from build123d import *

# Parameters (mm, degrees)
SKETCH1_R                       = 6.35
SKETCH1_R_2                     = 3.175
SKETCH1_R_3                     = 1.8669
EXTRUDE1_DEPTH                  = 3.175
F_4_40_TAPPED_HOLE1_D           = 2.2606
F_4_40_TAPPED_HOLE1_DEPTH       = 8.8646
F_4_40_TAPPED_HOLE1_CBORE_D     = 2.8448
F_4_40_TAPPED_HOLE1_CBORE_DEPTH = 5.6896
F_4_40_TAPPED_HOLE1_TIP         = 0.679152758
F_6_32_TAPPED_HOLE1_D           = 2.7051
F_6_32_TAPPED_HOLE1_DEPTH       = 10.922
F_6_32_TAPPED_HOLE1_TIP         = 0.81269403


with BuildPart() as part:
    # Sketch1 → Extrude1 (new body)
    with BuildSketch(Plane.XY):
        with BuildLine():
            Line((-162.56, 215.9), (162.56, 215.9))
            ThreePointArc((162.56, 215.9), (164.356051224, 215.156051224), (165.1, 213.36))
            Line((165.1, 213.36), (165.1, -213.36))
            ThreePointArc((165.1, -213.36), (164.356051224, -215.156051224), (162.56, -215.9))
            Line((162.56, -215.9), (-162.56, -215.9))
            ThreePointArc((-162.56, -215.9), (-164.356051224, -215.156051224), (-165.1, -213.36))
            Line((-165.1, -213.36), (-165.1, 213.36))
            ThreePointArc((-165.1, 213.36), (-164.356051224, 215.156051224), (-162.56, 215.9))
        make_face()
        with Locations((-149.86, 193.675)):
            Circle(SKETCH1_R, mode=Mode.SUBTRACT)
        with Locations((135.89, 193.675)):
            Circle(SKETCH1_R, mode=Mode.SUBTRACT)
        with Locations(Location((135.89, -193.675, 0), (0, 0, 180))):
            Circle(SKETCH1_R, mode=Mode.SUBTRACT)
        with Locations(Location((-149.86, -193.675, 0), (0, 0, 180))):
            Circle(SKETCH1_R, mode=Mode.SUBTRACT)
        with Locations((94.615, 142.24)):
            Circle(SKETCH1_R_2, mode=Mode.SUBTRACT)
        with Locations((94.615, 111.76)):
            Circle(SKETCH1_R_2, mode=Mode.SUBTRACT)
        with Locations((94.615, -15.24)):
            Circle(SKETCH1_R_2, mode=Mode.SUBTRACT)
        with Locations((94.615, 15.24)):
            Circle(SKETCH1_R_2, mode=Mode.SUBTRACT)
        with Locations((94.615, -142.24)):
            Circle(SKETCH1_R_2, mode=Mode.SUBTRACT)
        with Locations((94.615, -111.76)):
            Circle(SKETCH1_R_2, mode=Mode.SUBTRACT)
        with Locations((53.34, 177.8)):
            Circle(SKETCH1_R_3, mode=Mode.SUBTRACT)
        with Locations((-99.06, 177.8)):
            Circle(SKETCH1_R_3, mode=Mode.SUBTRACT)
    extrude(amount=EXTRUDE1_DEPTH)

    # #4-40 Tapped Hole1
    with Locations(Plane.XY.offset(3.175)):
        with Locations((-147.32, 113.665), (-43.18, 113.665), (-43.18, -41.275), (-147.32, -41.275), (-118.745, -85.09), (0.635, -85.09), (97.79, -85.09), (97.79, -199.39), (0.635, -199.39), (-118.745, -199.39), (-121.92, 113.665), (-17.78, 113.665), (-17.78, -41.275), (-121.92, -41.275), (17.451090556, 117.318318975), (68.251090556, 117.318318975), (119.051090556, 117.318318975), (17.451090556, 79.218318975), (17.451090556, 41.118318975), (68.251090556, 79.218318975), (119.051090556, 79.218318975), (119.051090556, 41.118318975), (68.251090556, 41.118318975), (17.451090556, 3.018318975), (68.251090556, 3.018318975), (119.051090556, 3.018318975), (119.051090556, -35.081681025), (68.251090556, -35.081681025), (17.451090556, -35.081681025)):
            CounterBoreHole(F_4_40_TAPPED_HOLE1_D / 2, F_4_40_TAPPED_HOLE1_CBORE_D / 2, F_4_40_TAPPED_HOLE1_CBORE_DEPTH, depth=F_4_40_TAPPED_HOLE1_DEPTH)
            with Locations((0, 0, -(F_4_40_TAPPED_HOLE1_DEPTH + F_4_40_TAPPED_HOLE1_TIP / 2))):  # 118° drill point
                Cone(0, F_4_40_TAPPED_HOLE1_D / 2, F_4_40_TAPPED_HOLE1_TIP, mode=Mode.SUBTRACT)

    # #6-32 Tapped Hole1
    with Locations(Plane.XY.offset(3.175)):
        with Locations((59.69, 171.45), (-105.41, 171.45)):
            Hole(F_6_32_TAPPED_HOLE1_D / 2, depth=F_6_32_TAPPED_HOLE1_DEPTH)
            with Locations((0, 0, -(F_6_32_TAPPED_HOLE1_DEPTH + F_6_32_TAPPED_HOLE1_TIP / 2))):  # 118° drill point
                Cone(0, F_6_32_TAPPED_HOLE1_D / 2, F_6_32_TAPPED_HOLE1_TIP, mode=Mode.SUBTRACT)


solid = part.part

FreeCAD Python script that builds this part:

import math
import FreeCAD as App
import Part
import Sketcher
from FreeCAD import Vector
Q = App.Units.Quantity

doc = App.newDocument("Part")
body = doc.addObject("PartDesign::Body", "Body")

sketch1 = doc.addObject("Sketcher::SketchObject", "Sketch")
body.addObject(sketch1)
sketch1.AttachmentSupport = (doc.XY_Plane, [""])
sketch1.MapMode = "FlatFace"
sketch1.addGeometry([
    Part.LineSegment(Vector(162.6, 215.9, 0), Vector(-162.6, 215.9, 0)),
    Part.ArcOfCircle(Part.Circle(Vector(-162.6, 213.4, 0), Vector(0, 0, 1), 2.5), math.radians(90), math.radians(180)),
    Part.LineSegment(Vector(-165.1, 213.4, 0), Vector(-165.1, -213.4, 0)),
    Part.ArcOfCircle(Part.Circle(Vector(-162.6, -213.4, 0), Vector(0, 0, 1), 2.5), math.radians(-180), math.radians(-90)),
    Part.LineSegment(Vector(-162.6, -215.9, 0), Vector(162.6, -215.9, 0)),
    Part.ArcOfCircle(Part.Circle(Vector(162.6, -213.4, 0), Vector(0, 0, 1), 2.5), math.radians(-90), math.radians(0)),
    Part.LineSegment(Vector(165.1, -213.4, 0), Vector(165.1, 213.4, 0)),
    Part.ArcOfCircle(Part.Circle(Vector(162.6, 213.4, 0), Vector(0, 0, 1), 2.5), math.radians(0), math.radians(90)),
    Part.Circle(Vector(135.9, -193.7, 0), Vector(0, 0, 1), 6.3),
    Part.Circle(Vector(94.6, -142.2, 0), Vector(0, 0, 1), 3.2),
    Part.Circle(Vector(94.6, -111.8, 0), Vector(0, 0, 1), 3.2),
    Part.Circle(Vector(94.6, -15.2, 0), Vector(0, 0, 1), 3.2),
    Part.Circle(Vector(-149.9, -193.7, 0), Vector(0, 0, 1), 6.3),
    Part.Circle(Vector(94.6, 15.2, 0), Vector(0, 0, 1), 3.2),
    Part.Circle(Vector(94.6, 111.8, 0), Vector(0, 0, 1), 3.2),
    Part.Circle(Vector(94.6, 142.2, 0), Vector(0, 0, 1), 3.2),
    Part.Circle(Vector(135.9, 193.7, 0), Vector(0, 0, 1), 6.3),
    Part.Circle(Vector(53.3, 177.8, 0), Vector(0, 0, 1), 1.9),
    Part.Circle(Vector(-99.1, 177.8, 0), Vector(0, 0, 1), 1.9),
    Part.Circle(Vector(-149.9, 193.7, 0), Vector(0, 0, 1), 6.3),
], False)
sketch1.addConstraint([
    Sketcher.Constraint("Tangent", 0, 2, 1, 1),
    Sketcher.Constraint("Tangent", 1, 2, 2, 1),
    Sketcher.Constraint("Tangent", 2, 2, 3, 1),
    Sketcher.Constraint("Tangent", 3, 2, 4, 1),
    Sketcher.Constraint("Tangent", 4, 2, 5, 1),
    Sketcher.Constraint("Tangent", 5, 2, 6, 1),
    Sketcher.Constraint("Tangent", 6, 2, 7, 1),
    Sketcher.Constraint("Tangent", 7, 2, 0, 1),
    Sketcher.Constraint("Horizontal", 0),
    Sketcher.Constraint("Vertical", 2),
    Sketcher.Constraint("Horizontal", 4),
    Sketcher.Constraint("Vertical", 6),
    Sketcher.Constraint("Equal", 1, 3),
    Sketcher.Constraint("Equal", 3, 5),
    Sketcher.Constraint("Equal", 5, 7),
    Sketcher.Constraint("Equal", 9, 10),
    Sketcher.Constraint("Equal", 10, 11),
    Sketcher.Constraint("Equal", 8, 12),
    Sketcher.Constraint("Equal", 11, 13),
    Sketcher.Constraint("Equal", 13, 14),
    Sketcher.Constraint("Equal", 14, 15),
    Sketcher.Constraint("Equal", 12, 16),
    Sketcher.Constraint("Equal", 17, 18),
    Sketcher.Constraint("Equal", 16, 19),
    Sketcher.Constraint("Symmetric", 1, 3, 5, 3, -1, 1),
    Sketcher.Constraint("Symmetric", 11, 3, 13, 3, -1),
    Sketcher.Constraint("Symmetric", 10, 3, 14, 3, -1),
    Sketcher.Constraint("Symmetric", 9, 3, 15, 3, -1),
    Sketcher.Constraint("Symmetric", 8, 3, 16, 3, -1),
    Sketcher.Constraint("Symmetric", 12, 3, 19, 3, -1),
    Sketcher.Constraint("Horizontal", 8, 3, 12, 3),
    Sketcher.Constraint("Horizontal", 17, 3, 18, 3),
    Sketcher.Constraint("Vertical", 9, 3, 10, 3),
    Sketcher.Constraint("Vertical", 10, 3, 11, 3),
    Sketcher.Constraint("Diameter", 8, Q("0.5 in")),
    Sketcher.Constraint("Radius", 1, Q("0.1 in")),
    Sketcher.Constraint("Diameter", 9, Q("0.25 in")),
    Sketcher.Constraint("Diameter", 17, Q("0.147 in")),
    Sketcher.Constraint("DistanceX", 0, 2, 0, 1, Q("12.8 in")),
    Sketcher.Constraint("DistanceY", 2, 2, 2, 1, Q("16.8 in")),
    Sketcher.Constraint("DistanceY", -1, 1, 17, 3, Q("7 in")),
    Sketcher.Constraint("DistanceY", 9, 3, 7, 3, Q("14 in")),
    Sketcher.Constraint("DistanceY", 5, 3, 10, 3, Q("4 in")),
    Sketcher.Constraint("DistanceY", 9, 3, 11, 3, Q("5 in")),
    Sketcher.Constraint("DistanceX", 18, 3, 17, 3, Q("6 in")),
    Sketcher.Constraint("DistanceX", 19, 3, 18, 3, Q("2 in")),
    Sketcher.Constraint("DistanceX", 12, 3, -1, 1, Q("5.9 in")),
    Sketcher.Constraint("DistanceX", -1, 1, 8, 3, Q("5.35 in")),
    Sketcher.Constraint("DistanceY", 8, 3, -1, 1, Q("7.625 in")),
    Sketcher.Constraint("DistanceX", -1, 1, 9, 3, Q("3.725 in")),
])
pad1 = doc.addObject("PartDesign::Pad", "Pad")
body.addObject(pad1)
pad1.Profile = sketch1
pad1.Length = Q("0.125 in")

sketch2 = doc.addObject("Sketcher::SketchObject", "Sketch001")
body.addObject(sketch2)
sketch2.AttachmentSupport = (doc.XY_Plane, [""])
sketch2.MapMode = "FlatFace"
sketch2.AttachmentOffset = App.Placement(Vector(0, 0, 0.125 * 25.4), App.Rotation())
sketch2.addGeometry([
    Part.Circle(Vector(-147.3, 113.7, 0), Vector(0, 0, 1), 1.1),
    Part.Circle(Vector(-43.2, 113.7, 0), Vector(0, 0, 1), 1.1),
    Part.Circle(Vector(-43.2, -41.3, 0), Vector(0, 0, 1), 1.1),
    Part.Circle(Vector(-147.3, -41.3, 0), Vector(0, 0, 1), 1.1),
    Part.Circle(Vector(-118.7, -85.1, 0), Vector(0, 0, 1), 1.1),
    Part.Circle(Vector(0.6, -85.1, 0), Vector(0, 0, 1), 1.1),
    Part.Circle(Vector(97.8, -85.1, 0), Vector(0, 0, 1), 1.1),
    Part.Circle(Vector(97.8, -199.4, 0), Vector(0, 0, 1), 1.1),
    Part.Circle(Vector(0.6, -199.4, 0), Vector(0, 0, 1), 1.1),
    Part.Circle(Vector(-118.7, -199.4, 0), Vector(0, 0, 1), 1.1),
    Part.Circle(Vector(-121.9, 113.7, 0), Vector(0, 0, 1), 1.1),
    Part.Circle(Vector(-17.8, 113.7, 0), Vector(0, 0, 1), 1.1),
    Part.Circle(Vector(-17.8, -41.3, 0), Vector(0, 0, 1), 1.1),
    Part.Circle(Vector(-121.9, -41.3, 0), Vector(0, 0, 1), 1.1),
    Part.Circle(Vector(17.5, 117.3, 0), Vector(0, 0, 1), 1.1),
    Part.Circle(Vector(68.3, 117.3, 0), Vector(0, 0, 1), 1.1),
    Part.Circle(Vector(119.1, 117.3, 0), Vector(0, 0, 1), 1.1),
    Part.Circle(Vector(17.5, 79.2, 0), Vector(0, 0, 1), 1.1),
    Part.Circle(Vector(17.5, 41.1, 0), Vector(0, 0, 1), 1.1),
    Part.Circle(Vector(68.3, 79.2, 0), Vector(0, 0, 1), 1.1),
    Part.Circle(Vector(119.1, 79.2, 0), Vector(0, 0, 1), 1.1),
    Part.Circle(Vector(119.1, 41.1, 0), Vector(0, 0, 1), 1.1),
    Part.Circle(Vector(68.3, 41.1, 0), Vector(0, 0, 1), 1.1),
    Part.Circle(Vector(17.5, 3, 0), Vector(0, 0, 1), 1.1),
    Part.Circle(Vector(68.3, 3, 0), Vector(0, 0, 1), 1.1),
    Part.Circle(Vector(119.1, 3, 0), Vector(0, 0, 1), 1.1),
    Part.Circle(Vector(119.1, -35.1, 0), Vector(0, 0, 1), 1.1),
    Part.Circle(Vector(68.3, -35.1, 0), Vector(0, 0, 1), 1.1),
    Part.Circle(Vector(17.5, -35.1, 0), Vector(0, 0, 1), 1.1),
], False)
sketch2.addConstraint([
    Sketcher.Constraint("Equal", 0, 1),
    Sketcher.Constraint("Equal", 1, 2),
    Sketcher.Constraint("Equal", 2, 3),
    Sketcher.Constraint("Equal", 3, 4),
    Sketcher.Constraint("Equal", 4, 5),
    Sketcher.Constraint("Equal", 5, 6),
    Sketcher.Constraint("Equal", 6, 7),
    Sketcher.Constraint("Equal", 7, 8),
    Sketcher.Constraint("Equal", 8, 9),
    Sketcher.Constraint("Equal", 9, 10),
    Sketcher.Constraint("Equal", 10, 11),
    Sketcher.Constraint("Equal", 11, 12),
    Sketcher.Constraint("Equal", 12, 13),
    Sketcher.Constraint("Equal", 13, 14),
    Sketcher.Constraint("Equal", 14, 15),
    Sketcher.Constraint("Equal", 15, 16),
    Sketcher.Constraint("Equal", 16, 17),
    Sketcher.Constraint("Equal", 17, 18),
    Sketcher.Constraint("Equal", 18, 19),
    Sketcher.Constraint("Equal", 19, 20),
    Sketcher.Constraint("Equal", 20, 21),
    Sketcher.Constraint("Equal", 21, 22),
    Sketcher.Constraint("Equal", 22, 23),
    Sketcher.Constraint("Equal", 23, 24),
    Sketcher.Constraint("Equal", 24, 25),
    Sketcher.Constraint("Equal", 25, 26),
    Sketcher.Constraint("Equal", 26, 27),
    Sketcher.Constraint("Equal", 27, 28),
    Sketcher.Constraint("Horizontal", 0, 3, 1, 3),
    Sketcher.Constraint("Horizontal", 2, 3, 3, 3),
    Sketcher.Constraint("Horizontal", 4, 3, 5, 3),
    Sketcher.Constraint("Horizontal", 5, 3, 6, 3),
    Sketcher.Constraint("Horizontal", 7, 3, 8, 3),
    Sketcher.Constraint("Horizontal", 8, 3, 9, 3),
    Sketcher.Constraint("Horizontal", 1, 3, 10, 3),
    Sketcher.Constraint("Horizontal", 10, 3, 11, 3),
    Sketcher.Constraint("Horizontal", 3, 3, 12, 3),
    Sketcher.Constraint("Horizontal", 12, 3, 13, 3),
    Sketcher.Constraint("Horizontal", 14, 3, 15, 3),
    Sketcher.Constraint("Horizontal", 15, 3, 16, 3),
    Sketcher.Constraint("Horizontal", 17, 3, 19, 3),
    Sketcher.Constraint("Horizontal", 19, 3, 20, 3),
    Sketcher.Constraint("Horizontal", 18, 3, 21, 3),
    Sketcher.Constraint("Horizontal", 21, 3, 22, 3),
    Sketcher.Constraint("Horizontal", 23, 3, 24, 3),
    Sketcher.Constraint("Horizontal", 24, 3, 25, 3),
    Sketcher.Constraint("Horizontal", 26, 3, 27, 3),
    Sketcher.Constraint("Horizontal", 27, 3, 28, 3),
    Sketcher.Constraint("Vertical", 1, 3, 2, 3),
    Sketcher.Constraint("Vertical", 0, 3, 3, 3),
    Sketcher.Constraint("Vertical", 6, 3, 7, 3),
    Sketcher.Constraint("Vertical", 5, 3, 8, 3),
    Sketcher.Constraint("Vertical", 4, 3, 9, 3),
    Sketcher.Constraint("Vertical", 11, 3, 12, 3),
    Sketcher.Constraint("Vertical", 10, 3, 13, 3),
    Sketcher.Constraint("Vertical", 14, 3, 17, 3),
    Sketcher.Constraint("Vertical", 17, 3, 18, 3),
    Sketcher.Constraint("Vertical", 15, 3, 19, 3),
    Sketcher.Constraint("Vertical", 16, 3, 20, 3),
    Sketcher.Constraint("Vertical", 20, 3, 21, 3),
    Sketcher.Constraint("Vertical", 19, 3, 22, 3),
    Sketcher.Constraint("Vertical", 18, 3, 23, 3),
    Sketcher.Constraint("Vertical", 22, 3, 24, 3),
    Sketcher.Constraint("Vertical", 21, 3, 25, 3),
    Sketcher.Constraint("Vertical", 25, 3, 26, 3),
    Sketcher.Constraint("Vertical", 24, 3, 27, 3),
    Sketcher.Constraint("Vertical", 23, 3, 28, 3),
    Sketcher.Constraint("Diameter", 0, Q("0.089 in")),
    Sketcher.Constraint("DistanceX", 0, 3, 10, 3, Q("1 in")),
    Sketcher.Constraint("DistanceX", 1, 3, 11, 3, Q("1 in")),
    Sketcher.Constraint("DistanceX", 14, 3, 15, 3, Q("2 in")),
    Sketcher.Constraint("DistanceX", 15, 3, 16, 3, Q("2 in")),
    Sketcher.Constraint("DistanceY", 18, 3, 14, 3, Q("3 in")),
    Sketcher.Constraint("DistanceY", 23, 3, 17, 3, Q("3 in")),
    Sketcher.Constraint("DistanceY", 26, 3, 21, 3, Q("3 in")),
    Sketcher.Constraint("DistanceX", 0, 3, -1, 1, Q("5.8 in")),
    Sketcher.Constraint("DistanceX", 1, 3, -1, 1, Q("1.7 in")),
    Sketcher.Constraint("DistanceY", 2, 3, 1, 3, Q("6.1 in")),
    Sketcher.Constraint("DistanceX", 4, 3, 5, 3, Q("4.7 in")),
    Sketcher.Constraint("DistanceY", 7, 3, 6, 3, Q("4.5 in")),
    Sketcher.Constraint("DistanceY", 17, 3, 14, 3, Q("1.5 in")),
    Sketcher.Constraint("DistanceY", 4, 3, -1, 1, Q("3.35 in")),
    Sketcher.Constraint("DistanceX", -1, 1, 6, 3, Q("3.85 in")),
    Sketcher.Constraint("DistanceY", -1, 1, 0, 3, Q("4.475 in")),
    Sketcher.Constraint("DistanceX", 4, 3, -1, 1, Q("4.675 in")),
    Sketcher.Constraint("DistanceX", -1, 1, 14, 3, Q("17.451091 mm")),
    Sketcher.Constraint("DistanceY", -1, 1, 14, 3, Q("117.318319 mm")),
])
doc.recompute()
hole = doc.addObject("PartDesign::Hole", "Hole")
body.addObject(hole)
hole.Profile = sketch2
hole.ThreadType = "None"
hole.Diameter = Q("0.089 in")
hole.DepthType = "Dimension"
hole.Depth = Q("0.349 in")
hole.DrillPoint = "Angled"
hole.DrillPointAngle = 118
hole.HoleCutType = "Counterbore"
hole.HoleCutDiameter = Q("0.112 in")
hole.HoleCutDepth = Q("0.224 in")

sketch3 = doc.addObject("Sketcher::SketchObject", "Sketch002")
body.addObject(sketch3)
sketch3.AttachmentSupport = (doc.XY_Plane, [""])
sketch3.MapMode = "FlatFace"
sketch3.AttachmentOffset = App.Placement(Vector(0, 0, 0.125 * 25.4), App.Rotation())
sketch3.addGeometry([
    Part.Circle(Vector(59.7, 171.4, 0), Vector(0, 0, 1), 1.4),
    Part.Circle(Vector(-105.4, 171.4, 0), Vector(0, 0, 1), 1.4),
], False)
sketch3.addConstraint([
    Sketcher.Constraint("Equal", 0, 1),
    Sketcher.Constraint("Horizontal", 0, 3, 1, 3),
    Sketcher.Constraint("Diameter", 0, Q("0.1065 in")),
    Sketcher.Constraint("DistanceX", 1, 3, 0, 3, Q("6.5 in")),
    Sketcher.Constraint("DistanceX", -1, 1, 0, 3, Q("2.35 in")),
    Sketcher.Constraint("DistanceY", -1, 1, 0, 3, Q("6.75 in")),
])
doc.recompute()
hole2 = doc.addObject("PartDesign::Hole", "Hole001")
body.addObject(hole2)
hole2.Profile = sketch3
hole2.ThreadType = "None"
hole2.Diameter = Q("0.1065 in")
hole2.DepthType = "Dimension"
hole2.Depth = Q("0.43 in")
hole2.DrillPoint = "Angled"
hole2.DrillPointAngle = 118

doc.recompute()
